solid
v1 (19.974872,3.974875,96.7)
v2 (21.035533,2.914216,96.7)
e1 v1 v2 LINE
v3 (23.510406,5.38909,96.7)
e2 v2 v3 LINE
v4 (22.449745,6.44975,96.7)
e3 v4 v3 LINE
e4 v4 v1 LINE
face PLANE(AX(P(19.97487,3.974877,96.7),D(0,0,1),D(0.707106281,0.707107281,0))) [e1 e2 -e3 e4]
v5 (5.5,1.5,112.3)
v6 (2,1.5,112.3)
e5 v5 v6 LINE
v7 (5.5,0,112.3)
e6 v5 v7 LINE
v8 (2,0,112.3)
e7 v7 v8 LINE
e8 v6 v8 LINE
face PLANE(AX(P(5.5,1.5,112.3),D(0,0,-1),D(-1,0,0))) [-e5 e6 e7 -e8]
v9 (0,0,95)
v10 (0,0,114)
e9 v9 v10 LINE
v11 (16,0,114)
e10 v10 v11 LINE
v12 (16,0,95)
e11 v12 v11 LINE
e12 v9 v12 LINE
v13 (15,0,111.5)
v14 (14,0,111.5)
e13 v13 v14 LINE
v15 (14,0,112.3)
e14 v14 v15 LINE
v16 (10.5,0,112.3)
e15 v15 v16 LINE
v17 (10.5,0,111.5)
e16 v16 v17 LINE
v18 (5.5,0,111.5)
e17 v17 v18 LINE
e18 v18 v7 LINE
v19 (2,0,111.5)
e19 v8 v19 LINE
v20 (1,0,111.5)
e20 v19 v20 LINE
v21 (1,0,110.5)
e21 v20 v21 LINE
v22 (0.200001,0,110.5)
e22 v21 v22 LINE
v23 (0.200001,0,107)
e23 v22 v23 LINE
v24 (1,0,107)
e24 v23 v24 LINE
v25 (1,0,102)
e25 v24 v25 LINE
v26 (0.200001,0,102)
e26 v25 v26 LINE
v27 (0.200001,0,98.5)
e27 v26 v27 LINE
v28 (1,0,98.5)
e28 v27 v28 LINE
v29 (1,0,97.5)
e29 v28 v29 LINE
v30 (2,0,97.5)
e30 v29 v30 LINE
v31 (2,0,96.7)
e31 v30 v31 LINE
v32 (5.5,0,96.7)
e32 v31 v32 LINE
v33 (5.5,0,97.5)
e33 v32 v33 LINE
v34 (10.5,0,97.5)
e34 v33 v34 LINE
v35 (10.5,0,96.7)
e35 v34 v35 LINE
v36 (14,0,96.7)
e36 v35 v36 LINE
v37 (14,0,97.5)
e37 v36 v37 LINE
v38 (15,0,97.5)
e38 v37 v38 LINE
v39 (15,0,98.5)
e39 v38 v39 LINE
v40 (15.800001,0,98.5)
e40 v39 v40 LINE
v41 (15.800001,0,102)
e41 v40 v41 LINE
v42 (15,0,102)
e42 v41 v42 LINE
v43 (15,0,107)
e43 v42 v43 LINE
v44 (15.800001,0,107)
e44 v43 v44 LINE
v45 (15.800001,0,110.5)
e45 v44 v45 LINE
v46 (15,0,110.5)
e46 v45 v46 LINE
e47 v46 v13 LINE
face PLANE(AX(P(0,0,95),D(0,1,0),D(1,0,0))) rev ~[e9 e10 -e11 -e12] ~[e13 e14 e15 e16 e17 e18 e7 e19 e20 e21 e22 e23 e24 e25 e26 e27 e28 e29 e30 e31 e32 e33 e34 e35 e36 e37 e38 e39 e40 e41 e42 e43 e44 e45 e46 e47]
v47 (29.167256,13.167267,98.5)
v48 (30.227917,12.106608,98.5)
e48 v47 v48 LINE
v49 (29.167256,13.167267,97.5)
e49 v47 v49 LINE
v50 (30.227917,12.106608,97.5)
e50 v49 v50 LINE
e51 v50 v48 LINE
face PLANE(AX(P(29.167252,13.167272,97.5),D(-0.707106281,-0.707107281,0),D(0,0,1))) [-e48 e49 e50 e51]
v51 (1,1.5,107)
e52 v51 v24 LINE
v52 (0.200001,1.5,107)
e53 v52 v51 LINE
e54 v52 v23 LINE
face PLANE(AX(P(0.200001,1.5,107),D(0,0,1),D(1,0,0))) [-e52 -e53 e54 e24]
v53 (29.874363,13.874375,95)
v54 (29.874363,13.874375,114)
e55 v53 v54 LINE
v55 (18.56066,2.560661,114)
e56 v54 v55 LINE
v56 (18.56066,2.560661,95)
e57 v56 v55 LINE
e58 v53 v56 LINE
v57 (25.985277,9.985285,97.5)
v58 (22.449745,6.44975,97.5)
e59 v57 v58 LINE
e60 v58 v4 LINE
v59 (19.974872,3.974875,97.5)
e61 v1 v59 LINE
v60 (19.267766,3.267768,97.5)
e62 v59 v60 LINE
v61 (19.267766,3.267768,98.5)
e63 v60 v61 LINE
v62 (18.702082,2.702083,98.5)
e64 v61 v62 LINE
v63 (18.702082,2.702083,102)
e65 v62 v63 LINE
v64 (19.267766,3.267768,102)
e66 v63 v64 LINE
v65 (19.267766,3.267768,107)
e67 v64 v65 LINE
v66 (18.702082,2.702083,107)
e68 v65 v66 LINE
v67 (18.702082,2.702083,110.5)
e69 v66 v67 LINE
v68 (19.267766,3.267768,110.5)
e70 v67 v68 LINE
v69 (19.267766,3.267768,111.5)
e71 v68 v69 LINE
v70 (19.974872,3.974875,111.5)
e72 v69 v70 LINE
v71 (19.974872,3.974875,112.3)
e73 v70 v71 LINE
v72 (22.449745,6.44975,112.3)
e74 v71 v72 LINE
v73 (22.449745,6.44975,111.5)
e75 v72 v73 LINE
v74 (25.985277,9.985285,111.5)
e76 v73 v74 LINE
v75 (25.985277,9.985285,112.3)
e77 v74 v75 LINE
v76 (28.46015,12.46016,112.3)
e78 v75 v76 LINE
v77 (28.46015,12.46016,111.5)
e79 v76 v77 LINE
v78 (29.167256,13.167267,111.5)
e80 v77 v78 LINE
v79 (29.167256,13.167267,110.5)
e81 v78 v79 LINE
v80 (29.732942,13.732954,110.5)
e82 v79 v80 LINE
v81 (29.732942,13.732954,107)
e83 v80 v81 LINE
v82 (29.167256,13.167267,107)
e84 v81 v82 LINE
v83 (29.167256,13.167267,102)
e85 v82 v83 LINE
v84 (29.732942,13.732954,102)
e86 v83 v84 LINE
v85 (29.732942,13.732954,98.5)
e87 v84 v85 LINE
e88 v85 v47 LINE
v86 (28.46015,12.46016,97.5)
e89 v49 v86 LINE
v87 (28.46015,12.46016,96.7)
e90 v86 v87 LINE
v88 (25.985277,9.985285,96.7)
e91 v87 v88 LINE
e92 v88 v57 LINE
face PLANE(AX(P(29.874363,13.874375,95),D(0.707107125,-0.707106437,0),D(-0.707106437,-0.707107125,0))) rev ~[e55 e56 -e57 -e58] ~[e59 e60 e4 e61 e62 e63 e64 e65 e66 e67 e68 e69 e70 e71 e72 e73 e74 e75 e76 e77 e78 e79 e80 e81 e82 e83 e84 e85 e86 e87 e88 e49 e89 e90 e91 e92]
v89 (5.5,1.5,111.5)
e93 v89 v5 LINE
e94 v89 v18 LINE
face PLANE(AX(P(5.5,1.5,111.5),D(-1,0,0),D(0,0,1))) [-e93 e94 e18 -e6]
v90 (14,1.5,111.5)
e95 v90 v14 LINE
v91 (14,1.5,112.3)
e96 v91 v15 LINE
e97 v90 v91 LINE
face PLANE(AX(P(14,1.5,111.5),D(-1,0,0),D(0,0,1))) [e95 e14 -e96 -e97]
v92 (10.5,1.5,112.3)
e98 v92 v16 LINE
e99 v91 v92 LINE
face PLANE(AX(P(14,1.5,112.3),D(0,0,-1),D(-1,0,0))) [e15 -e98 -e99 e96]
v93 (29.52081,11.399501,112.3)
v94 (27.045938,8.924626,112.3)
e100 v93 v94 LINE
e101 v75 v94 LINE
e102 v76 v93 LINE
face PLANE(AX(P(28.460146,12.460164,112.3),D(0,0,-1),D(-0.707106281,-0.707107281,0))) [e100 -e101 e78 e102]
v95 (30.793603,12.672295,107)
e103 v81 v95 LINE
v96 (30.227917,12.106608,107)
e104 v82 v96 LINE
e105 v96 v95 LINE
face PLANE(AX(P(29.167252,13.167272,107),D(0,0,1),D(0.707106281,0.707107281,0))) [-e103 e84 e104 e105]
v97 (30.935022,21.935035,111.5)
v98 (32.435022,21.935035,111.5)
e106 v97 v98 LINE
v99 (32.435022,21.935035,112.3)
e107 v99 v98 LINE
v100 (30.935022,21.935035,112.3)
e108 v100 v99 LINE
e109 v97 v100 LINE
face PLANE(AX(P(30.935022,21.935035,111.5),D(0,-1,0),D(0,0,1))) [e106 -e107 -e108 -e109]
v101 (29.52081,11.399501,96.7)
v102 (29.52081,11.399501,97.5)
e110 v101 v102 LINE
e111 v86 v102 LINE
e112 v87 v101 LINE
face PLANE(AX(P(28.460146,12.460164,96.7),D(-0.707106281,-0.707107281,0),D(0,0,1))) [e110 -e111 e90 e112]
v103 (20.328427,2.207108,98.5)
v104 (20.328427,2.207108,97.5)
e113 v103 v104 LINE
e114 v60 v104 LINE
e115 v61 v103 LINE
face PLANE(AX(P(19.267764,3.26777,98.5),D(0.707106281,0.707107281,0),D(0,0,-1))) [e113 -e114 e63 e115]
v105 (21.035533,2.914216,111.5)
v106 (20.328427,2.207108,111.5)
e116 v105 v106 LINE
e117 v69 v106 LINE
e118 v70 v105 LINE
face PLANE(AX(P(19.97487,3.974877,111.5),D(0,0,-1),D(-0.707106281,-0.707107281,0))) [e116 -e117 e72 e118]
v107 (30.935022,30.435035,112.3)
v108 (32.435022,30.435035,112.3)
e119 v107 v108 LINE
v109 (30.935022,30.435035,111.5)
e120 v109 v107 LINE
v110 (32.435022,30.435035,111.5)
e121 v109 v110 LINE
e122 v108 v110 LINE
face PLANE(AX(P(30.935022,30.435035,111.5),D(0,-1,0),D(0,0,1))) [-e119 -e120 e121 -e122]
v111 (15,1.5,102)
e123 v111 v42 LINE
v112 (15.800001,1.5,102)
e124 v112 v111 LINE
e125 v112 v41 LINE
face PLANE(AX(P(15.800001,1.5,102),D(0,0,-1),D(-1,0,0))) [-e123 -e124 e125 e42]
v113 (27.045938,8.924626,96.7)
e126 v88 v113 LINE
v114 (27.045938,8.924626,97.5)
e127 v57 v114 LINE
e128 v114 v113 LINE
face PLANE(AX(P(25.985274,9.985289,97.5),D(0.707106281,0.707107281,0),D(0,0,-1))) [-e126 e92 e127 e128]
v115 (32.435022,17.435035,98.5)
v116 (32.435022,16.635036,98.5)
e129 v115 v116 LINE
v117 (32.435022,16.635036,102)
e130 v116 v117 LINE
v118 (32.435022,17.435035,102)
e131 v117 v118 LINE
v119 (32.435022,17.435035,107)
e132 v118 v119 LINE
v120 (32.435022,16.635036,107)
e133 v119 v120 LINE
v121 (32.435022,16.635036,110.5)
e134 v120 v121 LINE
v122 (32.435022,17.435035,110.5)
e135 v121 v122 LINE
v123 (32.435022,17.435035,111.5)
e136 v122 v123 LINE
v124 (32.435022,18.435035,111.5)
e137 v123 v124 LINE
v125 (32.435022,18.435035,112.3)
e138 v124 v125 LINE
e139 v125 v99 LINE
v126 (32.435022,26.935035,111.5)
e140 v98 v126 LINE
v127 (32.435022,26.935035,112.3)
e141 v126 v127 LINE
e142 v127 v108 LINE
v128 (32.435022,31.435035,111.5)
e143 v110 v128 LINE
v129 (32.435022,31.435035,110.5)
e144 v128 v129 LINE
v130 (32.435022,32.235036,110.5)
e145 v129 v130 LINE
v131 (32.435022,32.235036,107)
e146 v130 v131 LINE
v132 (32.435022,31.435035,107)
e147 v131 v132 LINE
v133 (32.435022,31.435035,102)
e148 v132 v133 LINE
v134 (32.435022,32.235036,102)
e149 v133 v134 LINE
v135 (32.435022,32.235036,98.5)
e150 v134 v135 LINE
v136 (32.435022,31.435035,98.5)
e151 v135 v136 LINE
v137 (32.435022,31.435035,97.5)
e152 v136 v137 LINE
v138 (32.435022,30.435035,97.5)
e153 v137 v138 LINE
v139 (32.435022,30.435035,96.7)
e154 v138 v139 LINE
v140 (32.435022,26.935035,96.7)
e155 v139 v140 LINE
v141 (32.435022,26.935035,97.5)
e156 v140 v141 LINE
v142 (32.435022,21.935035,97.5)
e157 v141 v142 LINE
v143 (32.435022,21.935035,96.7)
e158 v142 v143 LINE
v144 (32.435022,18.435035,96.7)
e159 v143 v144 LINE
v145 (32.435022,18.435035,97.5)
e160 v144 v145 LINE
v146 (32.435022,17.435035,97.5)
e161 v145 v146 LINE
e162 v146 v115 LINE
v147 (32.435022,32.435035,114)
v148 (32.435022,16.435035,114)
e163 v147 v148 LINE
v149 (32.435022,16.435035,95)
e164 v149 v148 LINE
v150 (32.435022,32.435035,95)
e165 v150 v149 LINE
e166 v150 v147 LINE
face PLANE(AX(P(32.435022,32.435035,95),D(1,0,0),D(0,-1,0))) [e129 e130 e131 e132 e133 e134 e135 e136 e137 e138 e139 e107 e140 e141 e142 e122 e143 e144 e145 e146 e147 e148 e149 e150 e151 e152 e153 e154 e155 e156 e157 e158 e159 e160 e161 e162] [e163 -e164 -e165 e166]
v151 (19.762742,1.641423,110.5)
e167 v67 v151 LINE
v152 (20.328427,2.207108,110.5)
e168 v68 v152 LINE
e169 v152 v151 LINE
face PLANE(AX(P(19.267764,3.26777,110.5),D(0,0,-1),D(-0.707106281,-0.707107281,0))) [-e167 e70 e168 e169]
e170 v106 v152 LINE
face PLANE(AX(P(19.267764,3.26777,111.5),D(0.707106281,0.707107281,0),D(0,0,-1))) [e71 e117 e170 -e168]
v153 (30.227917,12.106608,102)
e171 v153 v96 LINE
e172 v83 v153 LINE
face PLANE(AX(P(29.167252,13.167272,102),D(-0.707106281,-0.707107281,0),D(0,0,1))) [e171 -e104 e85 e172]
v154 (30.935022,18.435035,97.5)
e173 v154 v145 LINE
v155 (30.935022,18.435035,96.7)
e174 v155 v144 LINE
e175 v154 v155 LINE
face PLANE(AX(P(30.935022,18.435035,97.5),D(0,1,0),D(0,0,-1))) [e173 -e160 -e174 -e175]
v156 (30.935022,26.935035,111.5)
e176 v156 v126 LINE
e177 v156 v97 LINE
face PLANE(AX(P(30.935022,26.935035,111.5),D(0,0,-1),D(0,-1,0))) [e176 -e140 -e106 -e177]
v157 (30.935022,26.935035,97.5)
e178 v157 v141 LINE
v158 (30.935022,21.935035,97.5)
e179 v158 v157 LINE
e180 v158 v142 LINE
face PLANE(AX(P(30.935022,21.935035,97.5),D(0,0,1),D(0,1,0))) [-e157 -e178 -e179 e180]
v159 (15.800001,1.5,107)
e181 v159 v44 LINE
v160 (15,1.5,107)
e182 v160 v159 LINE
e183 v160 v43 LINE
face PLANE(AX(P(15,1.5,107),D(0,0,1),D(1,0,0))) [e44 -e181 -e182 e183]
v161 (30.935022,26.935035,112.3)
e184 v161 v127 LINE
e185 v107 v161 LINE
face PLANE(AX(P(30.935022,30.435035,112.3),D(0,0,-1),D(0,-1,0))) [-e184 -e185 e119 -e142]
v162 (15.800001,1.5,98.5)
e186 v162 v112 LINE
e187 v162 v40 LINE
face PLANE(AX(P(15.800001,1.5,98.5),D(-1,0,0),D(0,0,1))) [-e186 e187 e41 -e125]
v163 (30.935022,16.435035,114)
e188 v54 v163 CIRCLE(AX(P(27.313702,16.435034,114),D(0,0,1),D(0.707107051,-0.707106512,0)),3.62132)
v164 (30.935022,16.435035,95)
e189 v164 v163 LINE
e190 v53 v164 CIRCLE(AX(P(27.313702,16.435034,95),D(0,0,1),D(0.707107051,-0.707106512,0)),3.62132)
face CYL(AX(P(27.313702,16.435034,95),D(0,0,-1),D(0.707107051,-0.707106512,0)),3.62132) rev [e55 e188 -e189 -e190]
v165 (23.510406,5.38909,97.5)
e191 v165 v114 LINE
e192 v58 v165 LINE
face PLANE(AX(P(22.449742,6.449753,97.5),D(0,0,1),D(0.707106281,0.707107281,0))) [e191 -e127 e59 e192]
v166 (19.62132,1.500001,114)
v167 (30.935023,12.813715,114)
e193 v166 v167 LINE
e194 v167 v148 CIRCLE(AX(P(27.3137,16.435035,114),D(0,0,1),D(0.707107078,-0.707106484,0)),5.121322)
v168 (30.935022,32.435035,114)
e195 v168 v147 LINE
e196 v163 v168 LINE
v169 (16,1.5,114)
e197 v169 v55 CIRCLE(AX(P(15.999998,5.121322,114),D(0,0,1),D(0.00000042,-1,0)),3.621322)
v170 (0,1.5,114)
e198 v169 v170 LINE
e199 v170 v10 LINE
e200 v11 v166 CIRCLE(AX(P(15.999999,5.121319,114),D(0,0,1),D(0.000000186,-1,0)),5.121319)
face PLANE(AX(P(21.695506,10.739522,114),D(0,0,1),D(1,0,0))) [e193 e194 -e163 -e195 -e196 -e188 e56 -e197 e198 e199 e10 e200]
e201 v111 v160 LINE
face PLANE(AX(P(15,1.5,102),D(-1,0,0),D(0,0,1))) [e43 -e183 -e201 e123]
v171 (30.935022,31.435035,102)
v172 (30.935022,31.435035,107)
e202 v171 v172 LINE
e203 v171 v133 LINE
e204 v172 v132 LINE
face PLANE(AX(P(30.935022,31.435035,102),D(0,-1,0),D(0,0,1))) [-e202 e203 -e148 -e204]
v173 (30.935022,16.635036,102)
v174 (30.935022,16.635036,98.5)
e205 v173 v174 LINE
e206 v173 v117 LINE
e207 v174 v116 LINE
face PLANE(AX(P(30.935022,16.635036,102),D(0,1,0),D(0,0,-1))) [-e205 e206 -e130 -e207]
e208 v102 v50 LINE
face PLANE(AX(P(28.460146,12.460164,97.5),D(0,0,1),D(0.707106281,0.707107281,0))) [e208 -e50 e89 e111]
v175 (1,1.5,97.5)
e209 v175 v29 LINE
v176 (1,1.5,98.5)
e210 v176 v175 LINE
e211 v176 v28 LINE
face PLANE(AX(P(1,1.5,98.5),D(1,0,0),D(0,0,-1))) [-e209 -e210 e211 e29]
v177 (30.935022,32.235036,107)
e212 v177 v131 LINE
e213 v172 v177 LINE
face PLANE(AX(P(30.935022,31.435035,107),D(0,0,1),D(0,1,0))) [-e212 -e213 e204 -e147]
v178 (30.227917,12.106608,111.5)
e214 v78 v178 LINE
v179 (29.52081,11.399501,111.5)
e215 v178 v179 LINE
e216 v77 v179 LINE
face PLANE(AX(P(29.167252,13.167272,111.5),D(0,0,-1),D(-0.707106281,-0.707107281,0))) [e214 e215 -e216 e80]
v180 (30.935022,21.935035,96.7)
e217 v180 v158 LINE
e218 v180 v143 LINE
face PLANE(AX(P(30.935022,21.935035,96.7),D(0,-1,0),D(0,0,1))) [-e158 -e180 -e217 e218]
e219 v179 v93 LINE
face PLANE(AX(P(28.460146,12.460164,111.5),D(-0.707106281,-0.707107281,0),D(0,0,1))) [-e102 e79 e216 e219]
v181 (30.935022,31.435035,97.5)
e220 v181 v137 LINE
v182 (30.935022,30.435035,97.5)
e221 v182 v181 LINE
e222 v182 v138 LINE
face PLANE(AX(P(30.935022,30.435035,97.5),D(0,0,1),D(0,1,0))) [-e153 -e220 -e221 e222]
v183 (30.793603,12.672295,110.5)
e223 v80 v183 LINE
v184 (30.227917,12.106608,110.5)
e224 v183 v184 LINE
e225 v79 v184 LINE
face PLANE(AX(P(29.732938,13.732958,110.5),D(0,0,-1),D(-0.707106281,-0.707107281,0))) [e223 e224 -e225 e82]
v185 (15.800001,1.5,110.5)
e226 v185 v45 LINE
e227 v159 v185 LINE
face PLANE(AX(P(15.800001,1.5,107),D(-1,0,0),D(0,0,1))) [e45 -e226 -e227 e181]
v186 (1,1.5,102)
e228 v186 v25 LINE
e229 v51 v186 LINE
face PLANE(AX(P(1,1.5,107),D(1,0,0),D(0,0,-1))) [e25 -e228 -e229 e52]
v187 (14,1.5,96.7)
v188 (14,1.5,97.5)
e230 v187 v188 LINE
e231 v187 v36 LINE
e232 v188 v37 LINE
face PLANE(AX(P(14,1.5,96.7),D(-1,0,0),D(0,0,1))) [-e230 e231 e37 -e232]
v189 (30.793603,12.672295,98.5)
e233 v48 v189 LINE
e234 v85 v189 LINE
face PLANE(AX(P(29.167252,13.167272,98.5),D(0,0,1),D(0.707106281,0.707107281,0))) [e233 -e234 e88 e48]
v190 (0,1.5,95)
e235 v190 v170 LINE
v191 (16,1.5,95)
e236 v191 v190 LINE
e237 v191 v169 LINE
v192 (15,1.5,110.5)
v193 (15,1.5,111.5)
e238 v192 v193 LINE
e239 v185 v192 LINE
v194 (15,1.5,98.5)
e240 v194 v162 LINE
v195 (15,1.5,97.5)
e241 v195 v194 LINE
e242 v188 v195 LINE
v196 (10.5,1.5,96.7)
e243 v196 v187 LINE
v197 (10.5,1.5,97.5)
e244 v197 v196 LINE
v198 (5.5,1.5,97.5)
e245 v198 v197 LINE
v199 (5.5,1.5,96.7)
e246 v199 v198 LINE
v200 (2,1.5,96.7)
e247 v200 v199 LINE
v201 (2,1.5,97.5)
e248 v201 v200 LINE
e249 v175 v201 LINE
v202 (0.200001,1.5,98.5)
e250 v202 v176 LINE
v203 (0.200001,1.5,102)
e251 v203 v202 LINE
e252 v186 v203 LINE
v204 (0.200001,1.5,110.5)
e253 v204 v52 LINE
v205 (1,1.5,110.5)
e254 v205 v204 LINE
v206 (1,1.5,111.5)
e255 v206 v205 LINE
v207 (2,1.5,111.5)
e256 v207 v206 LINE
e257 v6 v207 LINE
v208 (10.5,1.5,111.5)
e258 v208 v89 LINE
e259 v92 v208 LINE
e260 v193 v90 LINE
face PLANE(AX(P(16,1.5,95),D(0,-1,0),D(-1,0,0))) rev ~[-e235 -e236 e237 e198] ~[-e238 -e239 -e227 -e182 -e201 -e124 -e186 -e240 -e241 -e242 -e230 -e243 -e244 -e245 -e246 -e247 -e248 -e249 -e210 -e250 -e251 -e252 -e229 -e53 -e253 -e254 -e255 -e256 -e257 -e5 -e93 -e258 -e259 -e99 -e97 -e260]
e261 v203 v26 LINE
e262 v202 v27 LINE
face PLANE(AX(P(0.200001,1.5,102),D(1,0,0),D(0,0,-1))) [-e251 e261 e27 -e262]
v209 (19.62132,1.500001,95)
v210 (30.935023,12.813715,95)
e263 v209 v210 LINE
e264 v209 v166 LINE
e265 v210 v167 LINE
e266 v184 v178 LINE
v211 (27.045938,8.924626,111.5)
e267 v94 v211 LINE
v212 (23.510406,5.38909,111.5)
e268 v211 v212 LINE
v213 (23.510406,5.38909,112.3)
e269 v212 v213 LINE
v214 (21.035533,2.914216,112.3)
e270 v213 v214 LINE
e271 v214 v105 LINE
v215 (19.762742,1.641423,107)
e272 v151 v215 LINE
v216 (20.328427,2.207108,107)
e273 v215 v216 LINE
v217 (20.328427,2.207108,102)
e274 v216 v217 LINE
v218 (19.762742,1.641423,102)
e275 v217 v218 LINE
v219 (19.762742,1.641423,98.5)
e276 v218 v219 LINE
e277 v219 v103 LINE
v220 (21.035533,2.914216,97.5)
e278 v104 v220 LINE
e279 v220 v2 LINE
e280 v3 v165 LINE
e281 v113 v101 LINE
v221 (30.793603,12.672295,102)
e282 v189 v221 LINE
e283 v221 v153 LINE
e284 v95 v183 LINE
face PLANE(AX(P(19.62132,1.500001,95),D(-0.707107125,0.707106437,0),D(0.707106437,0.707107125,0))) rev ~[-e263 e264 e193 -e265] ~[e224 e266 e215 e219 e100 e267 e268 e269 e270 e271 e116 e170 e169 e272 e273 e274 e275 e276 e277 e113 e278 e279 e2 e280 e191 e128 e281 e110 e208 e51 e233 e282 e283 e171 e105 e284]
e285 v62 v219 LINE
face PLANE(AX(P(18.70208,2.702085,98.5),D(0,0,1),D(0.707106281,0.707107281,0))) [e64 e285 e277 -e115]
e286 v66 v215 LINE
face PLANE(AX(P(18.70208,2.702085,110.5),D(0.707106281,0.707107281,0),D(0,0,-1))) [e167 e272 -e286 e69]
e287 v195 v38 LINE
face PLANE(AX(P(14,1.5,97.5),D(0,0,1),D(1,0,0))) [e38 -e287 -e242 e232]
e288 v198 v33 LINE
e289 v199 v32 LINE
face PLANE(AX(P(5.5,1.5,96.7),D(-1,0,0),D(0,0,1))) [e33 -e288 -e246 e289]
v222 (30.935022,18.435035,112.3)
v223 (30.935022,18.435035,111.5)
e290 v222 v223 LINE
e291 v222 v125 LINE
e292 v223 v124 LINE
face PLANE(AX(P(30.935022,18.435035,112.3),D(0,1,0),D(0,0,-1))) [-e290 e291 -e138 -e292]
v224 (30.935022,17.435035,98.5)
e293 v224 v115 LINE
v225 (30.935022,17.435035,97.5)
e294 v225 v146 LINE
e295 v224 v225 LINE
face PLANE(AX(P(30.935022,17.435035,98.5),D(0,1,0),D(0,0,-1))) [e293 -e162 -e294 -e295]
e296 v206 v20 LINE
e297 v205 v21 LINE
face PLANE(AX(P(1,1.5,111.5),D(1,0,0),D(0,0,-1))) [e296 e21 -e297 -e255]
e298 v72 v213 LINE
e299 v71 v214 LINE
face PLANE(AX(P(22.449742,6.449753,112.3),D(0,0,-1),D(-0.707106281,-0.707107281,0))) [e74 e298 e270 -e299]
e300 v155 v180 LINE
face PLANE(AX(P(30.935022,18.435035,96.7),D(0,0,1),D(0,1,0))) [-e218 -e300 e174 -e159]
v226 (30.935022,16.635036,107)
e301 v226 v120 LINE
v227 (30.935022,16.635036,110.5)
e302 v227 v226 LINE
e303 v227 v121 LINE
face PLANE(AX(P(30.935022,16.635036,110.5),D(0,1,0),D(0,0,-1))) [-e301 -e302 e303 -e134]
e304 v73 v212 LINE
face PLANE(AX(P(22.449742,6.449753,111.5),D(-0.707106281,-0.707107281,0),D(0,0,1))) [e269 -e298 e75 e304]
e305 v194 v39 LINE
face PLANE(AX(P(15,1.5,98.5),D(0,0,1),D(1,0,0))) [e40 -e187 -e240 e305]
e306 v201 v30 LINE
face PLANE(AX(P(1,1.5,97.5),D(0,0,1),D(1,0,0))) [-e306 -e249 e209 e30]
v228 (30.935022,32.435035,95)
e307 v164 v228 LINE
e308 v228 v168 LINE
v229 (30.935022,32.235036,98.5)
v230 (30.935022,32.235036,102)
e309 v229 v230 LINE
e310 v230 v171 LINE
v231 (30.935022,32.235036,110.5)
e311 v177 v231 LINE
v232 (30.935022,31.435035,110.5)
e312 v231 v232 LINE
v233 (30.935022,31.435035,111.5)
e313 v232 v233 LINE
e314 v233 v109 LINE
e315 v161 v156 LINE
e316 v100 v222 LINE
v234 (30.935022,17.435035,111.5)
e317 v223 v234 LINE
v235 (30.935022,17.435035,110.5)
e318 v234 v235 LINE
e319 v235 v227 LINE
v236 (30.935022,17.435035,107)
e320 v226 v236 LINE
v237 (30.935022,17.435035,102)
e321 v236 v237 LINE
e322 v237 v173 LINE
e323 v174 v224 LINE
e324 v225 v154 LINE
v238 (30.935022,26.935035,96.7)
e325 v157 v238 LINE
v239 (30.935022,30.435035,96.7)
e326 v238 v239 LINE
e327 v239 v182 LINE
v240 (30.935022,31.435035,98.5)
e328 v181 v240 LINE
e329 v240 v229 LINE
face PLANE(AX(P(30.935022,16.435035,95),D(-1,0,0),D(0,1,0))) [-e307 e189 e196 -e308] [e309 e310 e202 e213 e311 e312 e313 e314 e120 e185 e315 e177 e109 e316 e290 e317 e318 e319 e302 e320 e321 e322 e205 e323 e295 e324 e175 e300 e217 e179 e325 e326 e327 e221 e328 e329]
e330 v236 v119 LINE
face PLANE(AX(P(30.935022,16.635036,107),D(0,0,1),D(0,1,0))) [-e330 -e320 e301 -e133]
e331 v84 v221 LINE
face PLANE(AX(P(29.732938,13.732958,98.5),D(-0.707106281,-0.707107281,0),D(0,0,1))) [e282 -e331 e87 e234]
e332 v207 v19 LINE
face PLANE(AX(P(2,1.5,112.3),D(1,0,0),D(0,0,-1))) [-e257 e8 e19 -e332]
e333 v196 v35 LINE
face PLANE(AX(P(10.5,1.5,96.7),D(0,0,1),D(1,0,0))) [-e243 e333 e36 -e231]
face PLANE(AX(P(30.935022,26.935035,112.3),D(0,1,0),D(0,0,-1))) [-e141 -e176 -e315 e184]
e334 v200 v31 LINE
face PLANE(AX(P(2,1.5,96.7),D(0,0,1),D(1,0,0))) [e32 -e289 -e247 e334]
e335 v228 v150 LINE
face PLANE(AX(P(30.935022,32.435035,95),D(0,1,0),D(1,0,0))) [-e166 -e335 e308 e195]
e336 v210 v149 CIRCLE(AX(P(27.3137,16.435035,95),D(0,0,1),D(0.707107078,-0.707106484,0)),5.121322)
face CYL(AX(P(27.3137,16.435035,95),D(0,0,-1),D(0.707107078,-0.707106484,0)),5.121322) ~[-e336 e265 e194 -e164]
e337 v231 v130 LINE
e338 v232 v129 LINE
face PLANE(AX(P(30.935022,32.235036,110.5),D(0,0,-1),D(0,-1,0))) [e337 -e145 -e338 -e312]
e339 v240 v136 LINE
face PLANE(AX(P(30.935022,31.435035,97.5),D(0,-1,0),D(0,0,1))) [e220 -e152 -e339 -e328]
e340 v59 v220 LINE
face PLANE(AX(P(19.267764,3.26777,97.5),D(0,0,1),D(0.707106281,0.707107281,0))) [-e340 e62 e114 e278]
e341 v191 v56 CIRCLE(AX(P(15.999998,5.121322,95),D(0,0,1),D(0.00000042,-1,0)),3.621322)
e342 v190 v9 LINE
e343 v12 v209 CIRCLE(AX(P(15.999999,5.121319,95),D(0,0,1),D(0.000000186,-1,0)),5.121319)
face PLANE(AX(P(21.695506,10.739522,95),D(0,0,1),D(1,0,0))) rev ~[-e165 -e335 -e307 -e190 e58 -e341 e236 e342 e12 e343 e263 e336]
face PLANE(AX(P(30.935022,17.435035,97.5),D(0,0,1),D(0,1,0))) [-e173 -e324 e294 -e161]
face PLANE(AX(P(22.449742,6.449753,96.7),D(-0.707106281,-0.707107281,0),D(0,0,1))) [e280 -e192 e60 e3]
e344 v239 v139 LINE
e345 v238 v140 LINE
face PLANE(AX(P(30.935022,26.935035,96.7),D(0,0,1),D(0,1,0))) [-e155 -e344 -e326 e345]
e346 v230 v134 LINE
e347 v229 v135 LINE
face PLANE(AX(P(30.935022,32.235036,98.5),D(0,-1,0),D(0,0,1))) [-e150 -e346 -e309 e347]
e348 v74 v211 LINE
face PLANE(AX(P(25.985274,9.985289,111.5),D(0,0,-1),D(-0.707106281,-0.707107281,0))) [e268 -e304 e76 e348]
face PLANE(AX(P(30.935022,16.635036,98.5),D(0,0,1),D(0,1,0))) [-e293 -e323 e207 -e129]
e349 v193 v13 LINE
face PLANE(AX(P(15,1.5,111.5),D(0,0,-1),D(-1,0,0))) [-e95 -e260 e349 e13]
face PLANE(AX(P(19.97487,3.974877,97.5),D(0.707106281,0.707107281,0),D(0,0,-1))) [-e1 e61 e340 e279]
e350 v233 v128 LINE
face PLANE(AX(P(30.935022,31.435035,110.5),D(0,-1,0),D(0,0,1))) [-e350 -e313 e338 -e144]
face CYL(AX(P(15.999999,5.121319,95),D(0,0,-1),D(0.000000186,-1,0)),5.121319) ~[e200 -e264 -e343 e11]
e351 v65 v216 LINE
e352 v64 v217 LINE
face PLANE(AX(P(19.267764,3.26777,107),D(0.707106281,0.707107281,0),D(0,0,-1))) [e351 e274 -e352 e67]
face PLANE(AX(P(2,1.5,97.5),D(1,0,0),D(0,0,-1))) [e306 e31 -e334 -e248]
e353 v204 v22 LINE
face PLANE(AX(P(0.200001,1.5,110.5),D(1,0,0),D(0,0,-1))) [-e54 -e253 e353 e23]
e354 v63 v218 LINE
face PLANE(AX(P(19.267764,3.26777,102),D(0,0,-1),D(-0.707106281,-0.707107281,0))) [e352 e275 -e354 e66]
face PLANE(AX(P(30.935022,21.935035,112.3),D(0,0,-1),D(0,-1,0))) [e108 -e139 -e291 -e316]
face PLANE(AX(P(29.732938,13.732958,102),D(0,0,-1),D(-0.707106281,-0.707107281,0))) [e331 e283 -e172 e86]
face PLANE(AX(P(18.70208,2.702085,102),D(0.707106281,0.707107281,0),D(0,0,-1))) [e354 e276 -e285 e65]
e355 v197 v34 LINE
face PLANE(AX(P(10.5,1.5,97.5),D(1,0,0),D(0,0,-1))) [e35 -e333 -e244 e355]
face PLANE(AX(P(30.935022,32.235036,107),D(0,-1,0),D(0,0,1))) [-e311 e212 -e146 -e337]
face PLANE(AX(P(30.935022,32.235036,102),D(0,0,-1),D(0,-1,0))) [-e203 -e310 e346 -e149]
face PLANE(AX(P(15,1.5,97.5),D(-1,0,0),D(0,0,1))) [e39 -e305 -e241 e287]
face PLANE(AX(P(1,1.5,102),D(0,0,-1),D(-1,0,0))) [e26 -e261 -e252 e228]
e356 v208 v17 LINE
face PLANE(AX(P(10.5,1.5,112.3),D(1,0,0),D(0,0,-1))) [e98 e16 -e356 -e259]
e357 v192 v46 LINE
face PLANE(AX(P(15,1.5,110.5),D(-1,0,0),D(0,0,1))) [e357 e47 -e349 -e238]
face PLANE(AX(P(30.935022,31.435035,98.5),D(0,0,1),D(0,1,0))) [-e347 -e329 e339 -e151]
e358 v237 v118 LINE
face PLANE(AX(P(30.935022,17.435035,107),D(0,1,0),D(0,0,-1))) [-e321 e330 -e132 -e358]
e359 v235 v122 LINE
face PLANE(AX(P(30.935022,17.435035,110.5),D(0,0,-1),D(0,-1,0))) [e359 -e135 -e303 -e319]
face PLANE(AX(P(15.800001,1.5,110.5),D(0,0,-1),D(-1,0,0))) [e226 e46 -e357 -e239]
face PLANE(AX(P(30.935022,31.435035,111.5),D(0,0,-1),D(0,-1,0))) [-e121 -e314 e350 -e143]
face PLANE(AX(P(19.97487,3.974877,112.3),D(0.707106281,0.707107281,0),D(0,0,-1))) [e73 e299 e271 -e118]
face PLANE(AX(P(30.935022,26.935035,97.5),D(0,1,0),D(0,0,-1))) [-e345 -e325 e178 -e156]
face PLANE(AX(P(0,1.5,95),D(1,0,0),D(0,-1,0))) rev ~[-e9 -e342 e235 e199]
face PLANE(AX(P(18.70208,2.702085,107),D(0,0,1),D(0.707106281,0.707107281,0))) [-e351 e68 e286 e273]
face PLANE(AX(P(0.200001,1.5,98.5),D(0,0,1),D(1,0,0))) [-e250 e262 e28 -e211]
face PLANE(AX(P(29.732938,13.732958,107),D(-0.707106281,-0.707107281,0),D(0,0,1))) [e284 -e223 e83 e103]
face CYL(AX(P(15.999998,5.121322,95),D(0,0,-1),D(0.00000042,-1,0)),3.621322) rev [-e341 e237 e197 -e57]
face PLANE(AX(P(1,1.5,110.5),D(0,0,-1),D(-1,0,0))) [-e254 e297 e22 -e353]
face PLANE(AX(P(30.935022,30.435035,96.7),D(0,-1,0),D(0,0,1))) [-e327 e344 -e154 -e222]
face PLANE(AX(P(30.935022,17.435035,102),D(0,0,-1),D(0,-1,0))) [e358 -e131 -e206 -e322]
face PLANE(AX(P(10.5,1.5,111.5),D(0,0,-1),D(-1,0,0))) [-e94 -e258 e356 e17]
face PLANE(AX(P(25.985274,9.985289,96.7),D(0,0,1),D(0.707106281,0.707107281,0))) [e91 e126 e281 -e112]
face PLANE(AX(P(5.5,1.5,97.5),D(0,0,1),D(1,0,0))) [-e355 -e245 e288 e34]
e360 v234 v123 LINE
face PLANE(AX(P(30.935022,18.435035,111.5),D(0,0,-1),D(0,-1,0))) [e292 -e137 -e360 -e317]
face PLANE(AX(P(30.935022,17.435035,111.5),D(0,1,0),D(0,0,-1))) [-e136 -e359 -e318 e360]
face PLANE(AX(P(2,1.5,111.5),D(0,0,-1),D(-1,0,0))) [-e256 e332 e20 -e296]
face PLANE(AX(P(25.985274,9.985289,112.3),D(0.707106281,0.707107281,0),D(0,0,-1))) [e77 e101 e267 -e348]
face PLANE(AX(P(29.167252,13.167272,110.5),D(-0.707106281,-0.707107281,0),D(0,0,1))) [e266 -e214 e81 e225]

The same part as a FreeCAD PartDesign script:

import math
import FreeCAD as App
import Part
import Sketcher

V = App.Vector
Q = App.Units.Quantity


def add_polygon(sketch, points):
    """Adds a closed chain of lines whose ends are joined by coincident constraints."""
    first, n = sketch.GeometryCount, len(points)
    for a, b in zip(points, points[1:] + points[:1]):
        sketch.addGeometry(Part.LineSegment(App.Vector(*a, 0), App.Vector(*b, 0)), False)
    for i in range(n):
        sketch.addConstraint(Sketcher.Constraint("Coincident", first + i, 2, first + (i + 1) % n, 1))

doc = App.newDocument("Part")
params = doc.addObject("Spreadsheet::Sheet", "Params")
for row, (alias, value) in enumerate([
    ("sketch1_width", "16 mm"),
    ("sketch1_length", "16 mm"),
    ("sketch1_width2", "1.5 mm"),
    ("pad1_length", "19 mm"),
    ("sketch2_width", "1 mm"),
    ("sketch2_width2", "5 mm"),
    ("sketch2_width3", "3.5 mm"),
    ("sketch2_width4", "0.800001 mm"),
    ("sketch3_width", "1 mm"),
    ("sketch3_width2", "5 mm"),
    ("sketch3_width3", "3.5 mm"),
    ("sketch3_width4", "0.800001 mm"),
    ("sketch4_width", "1 mm"),
    ("sketch4_width2", "5 mm"),
    ("sketch4_width3", "3.5 mm"),
    ("sketch4_width4", "0.800001 mm"),
], start=1):
    params.set(f"A{row}", alias)
    params.set(f"B{row}", "=" + value)
    params.setAlias(f"B{row}", alias)

body = doc.addObject("PartDesign::Body", "Body")

sketch1 = body.newObject("Sketcher::SketchObject", "Sketch")
sketch1.AttachmentSupport = (doc.getObject("XY_Plane"), [""])
sketch1.MapMode = "FlatFace"
sketch1.addGeometry(Part.LineSegment(V(0, 0, 0), V(16, 0, 0)), False)
sketch1.addGeometry(Part.ArcOfCircle(Part.Circle(V(16, 5.1, 0), V(0, 0, 1), 5.1), math.radians(-90), math.radians(-45)), False)
sketch1.addGeometry(Part.LineSegment(V(19.6, 1.5, 0), V(30.9, 12.8, 0)), False)
sketch1.addGeometry(Part.ArcOfCircle(Part.Circle(V(27.3, 16.4, 0), V(0, 0, 1), 5.1), math.radians(-45), math.radians(0)), False)
sketch1.addGeometry(Part.LineSegment(V(32.4, 16.4, 0), V(32.4, 32.4, 0)), False)
sketch1.addGeometry(Part.LineSegment(V(32.4, 32.4, 0), V(30.9, 32.4, 0)), False)
sketch1.addGeometry(Part.LineSegment(V(30.9, 32.4, 0), V(30.9, 16.4, 0)), False)
sketch1.addGeometry(Part.ArcOfCircle(Part.Circle(V(27.3, 16.4, 0), V(0, 0, 1), 3.6), math.radians(-45), math.radians(0)), False)
sketch1.addGeometry(Part.LineSegment(V(29.9, 13.9, 0), V(18.6, 2.6, 0)), False)
sketch1.addGeometry(Part.ArcOfCircle(Part.Circle(V(16, 5.1, 0), V(0, 0, 1), 3.6), math.radians(-90), math.radians(-45)), False)
sketch1.addGeometry(Part.LineSegment(V(16, 1.5, 0), V(0, 1.5, 0)), False)
sketch1.addGeometry(Part.LineSegment(V(0, 1.5, 0), V(0, 0, 0)), False)
sketch1.addConstraint(Sketcher.Constraint("Tangent", 0, 2, 1, 1))
sketch1.addConstraint(Sketcher.Constraint("Tangent", 1, 2, 2, 1))
sketch1.addConstraint(Sketcher.Constraint("Tangent", 2, 2, 3, 1))
sketch1.addConstraint(Sketcher.Constraint("Tangent", 3, 2, 4, 1))
sketch1.addConstraint(Sketcher.Constraint("Coincident", 4, 2, 5, 1))
sketch1.addConstraint(Sketcher.Constraint("Coincident", 5, 2, 6, 1))
sketch1.addConstraint(Sketcher.Constraint("Tangent", 6, 2, 7, 2))
sketch1.addConstraint(Sketcher.Constraint("Tangent", 7, 1, 8, 1))
sketch1.addConstraint(Sketcher.Constraint("Tangent", 8, 2, 9, 2))
sketch1.addConstraint(Sketcher.Constraint("Tangent", 9, 1, 10, 1))
sketch1.addConstraint(Sketcher.Constraint("Coincident", 10, 2, 11, 1))
sketch1.addConstraint(Sketcher.Constraint("Coincident", 11, 2, 0, 1))
sketch1.addConstraint(Sketcher.Constraint("Horizontal", 0))
sketch1.addConstraint(Sketcher.Constraint("Vertical", 4))
sketch1.addConstraint(Sketcher.Constraint("Horizontal", 5))
sketch1.addConstraint(Sketcher.Constraint("Vertical", 6))
sketch1.addConstraint(Sketcher.Constraint("Horizontal", 10))
sketch1.addConstraint(Sketcher.Constraint("Vertical", 11))
sketch1.addConstraint(Sketcher.Constraint("Coincident", 11, 2, -1, 1))
sketch1.addConstraint(Sketcher.Constraint("Coincident", 7, 3, 3, 3))
sketch1.addConstraint(Sketcher.Constraint("Coincident", 9, 3, 1, 3))
sketch1.addConstraint(Sketcher.Constraint("Equal", 7, 9))
sketch1.addConstraint(Sketcher.Constraint("Parallel", 2, 8))
sketch1.addConstraint(Sketcher.Constraint("Horizontal", 1, 2, 9, 1))
sketch1.addConstraint(Sketcher.Constraint("Vertical", 2, 2, 5, 2))
sketch1.addConstraint(Sketcher.Constraint("Equal", 10, 4))
sketch1.addConstraint(Sketcher.Constraint("DistanceX", 0, 1, 0, 2, Q("16 mm")))
sketch1.addConstraint(Sketcher.Constraint("Distance", 2, Q("16 mm")))
sketch1.addConstraint(Sketcher.Constraint("DistanceX", 5, 2, 5, 1, Q("1.5 mm")))
sketch1.setExpression("Constraints[26]", "Params.sketch1_width")
sketch1.setExpression("Constraints[27]", "Params.sketch1_length")
sketch1.setExpression("Constraints[28]", "Params.sketch1_width2")
pad1 = body.newObject("PartDesign::Pad", "Pad")
pad1.Profile = sketch1
pad1.setExpression("Length", "Params.pad1_length")

sketch2 = body.newObject("Sketcher::SketchObject", "Sketch001")
sketch2.Placement = App.Placement(V(8.000009, -8.000001, 0), App.Rotation(V(-0.707106281, -0.707107281, 0), V(0, 0, 0.999999999), V(-0.707107281, 0.707106281, 0), "ZXY"))
add_polygon(sketch2, [(-25.4, 17.3), (-28.9, 17.3), (-28.9, 16.5), (-29.9, 16.5), (-29.9, 15.5), (-30.7, 15.5), (-30.7, 12), (-29.9, 12), (-29.9, 7), (-30.7, 7), (-30.7, 3.5), (-29.9, 3.5), (-29.9, 2.5), (-28.9, 2.5), (-28.9, 1.7), (-25.4, 1.7), (-25.4, 2.5), (-20.4, 2.5), (-20.4, 1.7), (-16.9, 1.7), (-16.9, 2.5), (-15.9, 2.5), (-15.9, 3.5), (-15.1, 3.5), (-15.1, 7), (-15.9, 7), (-15.9, 12), (-15.1, 12), (-15.1, 15.5), (-15.9, 15.5), (-15.9, 16.5), (-16.9, 16.5), (-16.9, 17.3), (-20.4, 17.3), (-20.4, 16.5), (-25.4, 16.5)])
sketch2.addConstraint(Sketcher.Constraint("Horizontal", 0))
sketch2.addConstraint(Sketcher.Constraint("Vertical", 1))
sketch2.addConstraint(Sketcher.Constraint("Horizontal", 2))
sketch2.addConstraint(Sketcher.Constraint("Vertical", 3))
sketch2.addConstraint(Sketcher.Constraint("Horizontal", 4))
sketch2.addConstraint(Sketcher.Constraint("Vertical", 5))
sketch2.addConstraint(Sketcher.Constraint("Horizontal", 6))
sketch2.addConstraint(Sketcher.Constraint("Vertical", 7))
sketch2.addConstraint(Sketcher.Constraint("Horizontal", 8))
sketch2.addConstraint(Sketcher.Constraint("Vertical", 9))
sketch2.addConstraint(Sketcher.Constraint("Horizontal", 10))
sketch2.addConstraint(Sketcher.Constraint("Vertical", 11))
sketch2.addConstraint(Sketcher.Constraint("Horizontal", 12))
sketch2.addConstraint(Sketcher.Constraint("Vertical", 13))
sketch2.addConstraint(Sketcher.Constraint("Horizontal", 14))
sketch2.addConstraint(Sketcher.Constraint("Vertical", 15))
sketch2.addConstraint(Sketcher.Constraint("Horizontal", 16))
sketch2.addConstraint(Sketcher.Constraint("Vertical", 17))
sketch2.addConstraint(Sketcher.Constraint("Horizontal", 18))
sketch2.addConstraint(Sketcher.Constraint("Vertical", 19))
sketch2.addConstraint(Sketcher.Constraint("Horizontal", 20))
sketch2.addConstraint(Sketcher.Constraint("Vertical", 21))
sketch2.addConstraint(Sketcher.Constraint("Horizontal", 22))
sketch2.addConstraint(Sketcher.Constraint("Vertical", 23))
sketch2.addConstraint(Sketcher.Constraint("Horizontal", 24))
sketch2.addConstraint(Sketcher.Constraint("Vertical", 25))
sketch2.addConstraint(Sketcher.Constraint("Horizontal", 26))
sketch2.addConstraint(Sketcher.Constraint("Vertical", 27))
sketch2.addConstraint(Sketcher.Constraint("Horizontal", 28))
sketch2.addConstraint(Sketcher.Constraint("Vertical", 29))
sketch2.addConstraint(Sketcher.Constraint("Horizontal", 30))
sketch2.addConstraint(Sketcher.Constraint("Vertical", 31))
sketch2.addConstraint(Sketcher.Constraint("Horizontal", 32))
sketch2.addConstraint(Sketcher.Constraint("Vertical", 33))
sketch2.addConstraint(Sketcher.Constraint("Horizontal", 34))
sketch2.addConstraint(Sketcher.Constraint("Vertical", 35))
sketch2.addConstraint(Sketcher.Constraint("Horizontal", 12, 2, 15, 2))
sketch2.addConstraint(Sketcher.Constraint("Horizontal", 14, 2, 17, 2))
sketch2.addConstraint(Sketcher.Constraint("Horizontal", 16, 2, 19, 2))
sketch2.addConstraint(Sketcher.Constraint("Horizontal", 10, 2, 21, 2))
sketch2.addConstraint(Sketcher.Constraint("Horizontal", 8, 2, 23, 2))
sketch2.addConstraint(Sketcher.Constraint("Horizontal", 6, 2, 25, 2))
sketch2.addConstraint(Sketcher.Constraint("Horizontal", 4, 2, 27, 2))
sketch2.addConstraint(Sketcher.Constraint("Horizontal", 2, 2, 29, 2))
sketch2.addConstraint(Sketcher.Constraint("Horizontal", 0, 2, 31, 2))
sketch2.addConstraint(Sketcher.Constraint("Horizontal", 30, 2, 33, 2))
sketch2.addConstraint(Sketcher.Constraint("Vertical", 3, 2, 6, 2))
sketch2.addConstraint(Sketcher.Constraint("Vertical", 5, 2, 8, 2))
sketch2.addConstraint(Sketcher.Constraint("Vertical", 7, 2, 10, 2))
sketch2.addConstraint(Sketcher.Constraint("Vertical", 1, 2, 12, 2))
sketch2.addConstraint(Sketcher.Constraint("Vertical", 21, 2, 24, 2))
sketch2.addConstraint(Sketcher.Constraint("Vertical", 23, 2, 26, 2))
sketch2.addConstraint(Sketcher.Constraint("Vertical", 25, 2, 28, 2))
sketch2.addConstraint(Sketcher.Constraint("Vertical", 19, 2, 30, 2))
sketch2.addConstraint(Sketcher.Constraint("Vertical", 17, 2, 32, 2))
sketch2.addConstraint(Sketcher.Constraint("Vertical", 15, 2, 34, 2))
sketch2.addConstraint(Sketcher.Constraint("Equal", 14, 18))
sketch2.addConstraint(Sketcher.Constraint("Equal", 12, 20))
sketch2.addConstraint(Sketcher.Constraint("Equal", 28, 1))
sketch2.addConstraint(Sketcher.Constraint("Equal", 30, 3))
sketch2.addConstraint(Sketcher.Constraint("Equal", 32, 5))
sketch2.addConstraint(Sketcher.Constraint("Equal", 34, 7))
sketch2.addConstraint(Sketcher.Constraint("Equal", 5, 9))
sketch2.addConstraint(Sketcher.Constraint("Equal", 3, 11))
sketch2.addConstraint(Sketcher.Constraint("Equal", 1, 13))
sketch2.addConstraint(Sketcher.Constraint("Equal", 10, 15))
sketch2.addConstraint(Sketcher.Constraint("DistanceX", 2, 2, 2, 1, Q("1 mm")))
sketch2.addConstraint(Sketcher.Constraint("DistanceX", 16, 1, 16, 2, Q("5 mm")))
sketch2.addConstraint(Sketcher.Constraint("DistanceX", 0, 2, 0, 1, Q("3.5 mm")))
sketch2.addConstraint(Sketcher.Constraint("DistanceX", 4, 2, 4, 1, Q("0.800001 mm")))
sketch2.addConstraint(Sketcher.Constraint("DistanceY", -1, 1, 5, 2, Q("12 mm")))
sketch2.addConstraint(Sketcher.Constraint("DistanceX", 0, 2, -1, 1, Q("28.935023 mm")))
sketch2.setExpression("Constraints[102]", "Params.sketch2_width")
sketch2.setExpression("Constraints[103]", "Params.sketch2_width2")
sketch2.setExpression("Constraints[104]", "Params.sketch2_width3")
sketch2.setExpression("Constraints[105]", "Params.sketch2_width4")
pocket1 = body.newObject("PartDesign::Pocket", "Pocket")
pocket1.Profile = sketch2
pocket1.Type = "ThroughAll"

sketch3 = body.newObject("Sketcher::SketchObject", "Sketch002")
sketch3.AttachmentSupport = (doc.getObject("YZ_Plane"), [""])
sketch3.MapMode = "FlatFace"
sketch3.AttachmentOffset = App.Placement(V(0, 0, 30.935022), App.Rotation())
add_polygon(sketch3, [(26.9, 17.3), (30.4, 17.3), (30.4, 16.5), (31.4, 16.5), (31.4, 15.5), (32.2, 15.5), (32.2, 12), (31.4, 12), (31.4, 7), (32.2, 7), (32.2, 3.5), (31.4, 3.5), (31.4, 2.5), (30.4, 2.5), (30.4, 1.7), (26.9, 1.7), (26.9, 2.5), (21.9, 2.5), (21.9, 1.7), (18.4, 1.7), (18.4, 2.5), (17.4, 2.5), (17.4, 3.5), (16.6, 3.5), (16.6, 7), (17.4, 7), (17.4, 12), (16.6, 12), (16.6, 15.5), (17.4, 15.5), (17.4, 16.5), (18.4, 16.5), (18.4, 17.3), (21.9, 17.3), (21.9, 16.5), (26.9, 16.5)])
sketch3.addConstraint(Sketcher.Constraint("Horizontal", 0))
sketch3.addConstraint(Sketcher.Constraint("Vertical", 1))
sketch3.addConstraint(Sketcher.Constraint("Horizontal", 2))
sketch3.addConstraint(Sketcher.Constraint("Vertical", 3))
sketch3.addConstraint(Sketcher.Constraint("Horizontal", 4))
sketch3.addConstraint(Sketcher.Constraint("Vertical", 5))
sketch3.addConstraint(Sketcher.Constraint("Horizontal", 6))
sketch3.addConstraint(Sketcher.Constraint("Vertical", 7))
sketch3.addConstraint(Sketcher.Constraint("Horizontal", 8))
sketch3.addConstraint(Sketcher.Constraint("Vertical", 9))
sketch3.addConstraint(Sketcher.Constraint("Horizontal", 10))
sketch3.addConstraint(Sketcher.Constraint("Vertical", 11))
sketch3.addConstraint(Sketcher.Constraint("Horizontal", 12))
sketch3.addConstraint(Sketcher.Constraint("Vertical", 13))
sketch3.addConstraint(Sketcher.Constraint("Horizontal", 14))
sketch3.addConstraint(Sketcher.Constraint("Vertical", 15))
sketch3.addConstraint(Sketcher.Constraint("Horizontal", 16))
sketch3.addConstraint(Sketcher.Constraint("Vertical", 17))
sketch3.addConstraint(Sketcher.Constraint("Horizontal", 18))
sketch3.addConstraint(Sketcher.Constraint("Vertical", 19))
sketch3.addConstraint(Sketcher.Constraint("Horizontal", 20))
sketch3.addConstraint(Sketcher.Constraint("Vertical", 21))
sketch3.addConstraint(Sketcher.Constraint("Horizontal", 22))
sketch3.addConstraint(Sketcher.Constraint("Vertical", 23))
sketch3.addConstraint(Sketcher.Constraint("Horizontal", 24))
sketch3.addConstraint(Sketcher.Constraint("Vertical", 25))
sketch3.addConstraint(Sketcher.Constraint("Horizontal", 26))
sketch3.addConstraint(Sketcher.Constraint("Vertical", 27))
sketch3.addConstraint(Sketcher.Constraint("Horizontal", 28))
sketch3.addConstraint(Sketcher.Constraint("Vertical", 29))
sketch3.addConstraint(Sketcher.Constraint("Horizontal", 30))
sketch3.addConstraint(Sketcher.Constraint("Vertical", 31))
sketch3.addConstraint(Sketcher.Constraint("Horizontal", 32))
sketch3.addConstraint(Sketcher.Constraint("Vertical", 33))
sketch3.addConstraint(Sketcher.Constraint("Horizontal", 34))
sketch3.addConstraint(Sketcher.Constraint("Vertical", 35))
sketch3.addConstraint(Sketcher.Constraint("Horizontal", 12, 2, 15, 2))
sketch3.addConstraint(Sketcher.Constraint("Horizontal", 14, 2, 17, 2))
sketch3.addConstraint(Sketcher.Constraint("Horizontal", 16, 2, 19, 2))
sketch3.addConstraint(Sketcher.Constraint("Horizontal", 10, 2, 21, 2))
sketch3.addConstraint(Sketcher.Constraint("Horizontal", 8, 2, 23, 2))
sketch3.addConstraint(Sketcher.Constraint("Horizontal", 6, 2, 25, 2))
sketch3.addConstraint(Sketcher.Constraint("Horizontal", 4, 2, 27, 2))
sketch3.addConstraint(Sketcher.Constraint("Horizontal", 2, 2, 29, 2))
sketch3.addConstraint(Sketcher.Constraint("Horizontal", 0, 2, 31, 2))
sketch3.addConstraint(Sketcher.Constraint("Horizontal", 30, 2, 33, 2))
sketch3.addConstraint(Sketcher.Constraint("Vertical", 3, 2, 6, 2))
sketch3.addConstraint(Sketcher.Constraint("Vertical", 5, 2, 8, 2))
sketch3.addConstraint(Sketcher.Constraint("Vertical", 7, 2, 10, 2))
sketch3.addConstraint(Sketcher.Constraint("Vertical", 1, 2, 12, 2))
sketch3.addConstraint(Sketcher.Constraint("Vertical", 21, 2, 24, 2))
sketch3.addConstraint(Sketcher.Constraint("Vertical", 23, 2, 26, 2))
sketch3.addConstraint(Sketcher.Constraint("Vertical", 25, 2, 28, 2))
sketch3.addConstraint(Sketcher.Constraint("Vertical", 19, 2, 30, 2))
sketch3.addConstraint(Sketcher.Constraint("Vertical", 17, 2, 32, 2))
sketch3.addConstraint(Sketcher.Constraint("Vertical", 15, 2, 34, 2))
sketch3.addConstraint(Sketcher.Constraint("Equal", 14, 18))
sketch3.addConstraint(Sketcher.Constraint("Equal", 12, 20))
sketch3.addConstraint(Sketcher.Constraint("Equal", 28, 1))
sketch3.addConstraint(Sketcher.Constraint("Equal", 30, 3))
sketch3.addConstraint(Sketcher.Constraint("Equal", 32, 5))
sketch3.addConstraint(Sketcher.Constraint("Equal", 34, 7))
sketch3.addConstraint(Sketcher.Constraint("Equal", 5, 9))
sketch3.addConstraint(Sketcher.Constraint("Equal", 3, 11))
sketch3.addConstraint(Sketcher.Constraint("Equal", 1, 13))
sketch3.addConstraint(Sketcher.Constraint("Equal", 10, 15))
sketch3.addConstraint(Sketcher.Constraint("DistanceX", 2, 1, 2, 2, Q("1 mm")))
sketch3.addConstraint(Sketcher.Constraint("DistanceX", 16, 2, 16, 1, Q("5 mm")))
sketch3.addConstraint(Sketcher.Constraint("DistanceX", 0, 1, 0, 2, Q("3.5 mm")))
sketch3.addConstraint(Sketcher.Constraint("DistanceX", 4, 1, 4, 2, Q("0.800001 mm")))
sketch3.addConstraint(Sketcher.Constraint("DistanceY", -1, 1, 5, 2, Q("12 mm")))
sketch3.addConstraint(Sketcher.Constraint("DistanceX", -1, 1, 0, 2, Q("30.435035 mm")))
sketch3.setExpression("Constraints[102]", "Params.sketch3_width")
sketch3.setExpression("Constraints[103]", "Params.sketch3_width2")
sketch3.setExpression("Constraints[104]", "Params.sketch3_width3")
sketch3.setExpression("Constraints[105]", "Params.sketch3_width4")
pocket2 = body.newObject("PartDesign::Pocket", "Pocket001")
pocket2.Profile = sketch3
pocket2.Type = "ThroughAll"
pocket2.Reversed = True

sketch4 = body.newObject("Sketcher::SketchObject", "Sketch003")
sketch4.AttachmentSupport = (doc.getObject("XZ_Plane"), [""])
sketch4.MapMode = "FlatFace"
sketch4.AttachmentOffset = App.Placement(V(0, 0, -1.5), App.Rotation())
add_polygon(sketch4, [(10.5, 17.3), (14, 17.3), (14, 16.5), (15, 16.5), (15, 15.5), (15.8, 15.5), (15.8, 12), (15, 12), (15, 7), (15.8, 7), (15.8, 3.5), (15, 3.5), (15, 2.5), (14, 2.5), (14, 1.7), (10.5, 1.7), (10.5, 2.5), (5.5, 2.5), (5.5, 1.7), (2, 1.7), (2, 2.5), (1, 2.5), (1, 3.5), (0.2, 3.5), (0.2, 7), (1, 7), (1, 12), (0.2, 12), (0.2, 15.5), (1, 15.5), (1, 16.5), (2, 16.5), (2, 17.3), (5.5, 17.3), (5.5, 16.5), (10.5, 16.5)])
sketch4.addConstraint(Sketcher.Constraint("Horizontal", 0))
sketch4.addConstraint(Sketcher.Constraint("Vertical", 1))
sketch4.addConstraint(Sketcher.Constraint("Horizontal", 2))
sketch4.addConstraint(Sketcher.Constraint("Vertical", 3))
sketch4.addConstraint(Sketcher.Constraint("Horizontal", 4))
sketch4.addConstraint(Sketcher.Constraint("Vertical", 5))
sketch4.addConstraint(Sketcher.Constraint("Horizontal", 6))
sketch4.addConstraint(Sketcher.Constraint("Vertical", 7))
sketch4.addConstraint(Sketcher.Constraint("Horizontal", 8))
sketch4.addConstraint(Sketcher.Constraint("Vertical", 9))
sketch4.addConstraint(Sketcher.Constraint("Horizontal", 10))
sketch4.addConstraint(Sketcher.Constraint("Vertical", 11))
sketch4.addConstraint(Sketcher.Constraint("Horizontal", 12))
sketch4.addConstraint(Sketcher.Constraint("Vertical", 13))
sketch4.addConstraint(Sketcher.Constraint("Horizontal", 14))
sketch4.addConstraint(Sketcher.Constraint("Vertical", 15))
sketch4.addConstraint(Sketcher.Constraint("Horizontal", 16))
sketch4.addConstraint(Sketcher.Constraint("Vertical", 17))
sketch4.addConstraint(Sketcher.Constraint("Horizontal", 18))
sketch4.addConstraint(Sketcher.Constraint("Vertical", 19))
sketch4.addConstraint(Sketcher.Constraint("Horizontal", 20))
sketch4.addConstraint(Sketcher.Constraint("Vertical", 21))
sketch4.addConstraint(Sketcher.Constraint("Horizontal", 22))
sketch4.addConstraint(Sketcher.Constraint("Vertical", 23))
sketch4.addConstraint(Sketcher.Constraint("Horizontal", 24))
sketch4.addConstraint(Sketcher.Constraint("Vertical", 25))
sketch4.addConstraint(Sketcher.Constraint("Horizontal", 26))
sketch4.addConstraint(Sketcher.Constraint("Vertical", 27))
sketch4.addConstraint(Sketcher.Constraint("Horizontal", 28))
sketch4.addConstraint(Sketcher.Constraint("Vertical", 29))
sketch4.addConstraint(Sketcher.Constraint("Horizontal", 30))
sketch4.addConstraint(Sketcher.Constraint("Vertical", 31))
sketch4.addConstraint(Sketcher.Constraint("Horizontal", 32))
sketch4.addConstraint(Sketcher.Constraint("Vertical", 33))
sketch4.addConstraint(Sketcher.Constraint("Horizontal", 34))
sketch4.addConstraint(Sketcher.Constraint("Vertical", 35))
sketch4.addConstraint(Sketcher.Constraint("Horizontal", 12, 2, 15, 2))
sketch4.addConstraint(Sketcher.Constraint("Horizontal", 14, 2, 17, 2))
sketch4.addConstraint(Sketcher.Constraint("Horizontal", 16, 2, 19, 2))
sketch4.addConstraint(Sketcher.Constraint("Horizontal", 10, 2, 21, 2))
sketch4.addConstraint(Sketcher.Constraint("Horizontal", 8, 2, 23, 2))
sketch4.addConstraint(Sketcher.Constraint("Horizontal", 6, 2, 25, 2))
sketch4.addConstraint(Sketcher.Constraint("Horizontal", 4, 2, 27, 2))
sketch4.addConstraint(Sketcher.Constraint("Horizontal", 2, 2, 29, 2))
sketch4.addConstraint(Sketcher.Constraint("Horizontal", 0, 2, 31, 2))
sketch4.addConstraint(Sketcher.Constraint("Horizontal", 30, 2, 33, 2))
sketch4.addConstraint(Sketcher.Constraint("Vertical", 3, 2, 6, 2))
sketch4.addConstraint(Sketcher.Constraint("Vertical", 5, 2, 8, 2))
sketch4.addConstraint(Sketcher.Constraint("Vertical", 7, 2, 10, 2))
sketch4.addConstraint(Sketcher.Constraint("Vertical", 1, 2, 12, 2))
sketch4.addConstraint(Sketcher.Constraint("Vertical", 21, 2, 24, 2))
sketch4.addConstraint(Sketcher.Constraint("Vertical", 23, 2, 26, 2))
sketch4.addConstraint(Sketcher.Constraint("Vertical", 25, 2, 28, 2))
sketch4.addConstraint(Sketcher.Constraint("Vertical", 19, 2, 30, 2))
sketch4.addConstraint(Sketcher.Constraint("Vertical", 17, 2, 32, 2))
sketch4.addConstraint(Sketcher.Constraint("Vertical", 15, 2, 34, 2))
sketch4.addConstraint(Sketcher.Constraint("Equal", 14, 18))
sketch4.addConstraint(Sketcher.Constraint("Equal", 12, 20))
sketch4.addConstraint(Sketcher.Constraint("Equal", 10, 22))
sketch4.addConstraint(Sketcher.Constraint("Equal", 28, 1))
sketch4.addConstraint(Sketcher.Constraint("Equal", 30, 3))
sketch4.addConstraint(Sketcher.Constraint("Equal", 32, 5))
sketch4.addConstraint(Sketcher.Constraint("Equal", 34, 7))
sketch4.addConstraint(Sketcher.Constraint("Equal", 5, 9))
sketch4.addConstraint(Sketcher.Constraint("Equal", 3, 11))
sketch4.addConstraint(Sketcher.Constraint("Equal", 1, 13))
sketch4.addConstraint(Sketcher.Constraint("DistanceX", 2, 1, 2, 2, Q("1 mm")))
sketch4.addConstraint(Sketcher.Constraint("DistanceX", 16, 2, 16, 1, Q("5 mm")))
sketch4.addConstraint(Sketcher.Constraint("DistanceX", 0, 1, 0, 2, Q("3.5 mm")))
sketch4.addConstraint(Sketcher.Constraint("DistanceX", 4, 1, 4, 2, Q("0.800001 mm")))
sketch4.addConstraint(Sketcher.Constraint("DistanceX", -1, 1, 0, 2, Q("14 mm")))
sketch4.addConstraint(Sketcher.Constraint("DistanceY", -1, 1, 5, 2, Q("12 mm")))
sketch4.setExpression("Constraints[102]", "Params.sketch4_width")
sketch4.setExpression("Constraints[103]", "Params.sketch4_width2")
sketch4.setExpression("Constraints[104]", "Params.sketch4_width3")
sketch4.setExpression("Constraints[105]", "Params.sketch4_width4")
pocket3 = body.newObject("PartDesign::Pocket", "Pocket002")
pocket3.Profile = sketch4
pocket3.Type = "ThroughAll"
pocket3.Reversed = True
body2 = doc.addObject("PartDesign::Body", "Body001")
doc.recompute()

body.Placement = App.Placement(V(0, 2.38, 19), App.Rotation(V(0, 0, 1), 0))
boolean = body2.newObject("PartDesign::Boolean", "Boolean")
boolean.Type = "Fuse"
boolean.addObjects([body])
body3 = doc.addObject("PartDesign::Body", "Body002")
doc.recompute()

body2.Placement = App.Placement(V(0, 4.75, 19), App.Rotation(V(0, 0, 1), 0))
boolean2 = body3.newObject("PartDesign::Boolean", "Boolean001")
boolean2.Type = "Fuse"
boolean2.addObjects([body2])
body4 = doc.addObject("PartDesign::Body", "Body003")
doc.recompute()

body3.Placement = App.Placement(V(0, -2.38, 19), App.Rotation(V(0, 0, 1), 0))
boolean3 = body4.newObject("PartDesign::Boolean", "Boolean002")
boolean3.Type = "Fuse"
boolean3.addObjects([body3])
body5 = doc.addObject("PartDesign::Body", "Body004")
doc.recompute()

body4.Placement = App.Placement(V(0, -4.75, 19), App.Rotation(V(0, 0, 1), 0))
boolean4 = body5.newObject("PartDesign::Boolean", "Boolean003")
boolean4.Type = "Fuse"
boolean4.addObjects([body4])
body6 = doc.addObject("PartDesign::Body", "Body005")
doc.recompute()

body5.Placement = App.Placement(V(0, 0, 19), App.Rotation(V(0, 0, 1), 0))
boolean5 = body6.newObject("PartDesign::Boolean", "Boolean004")
boolean5.Type = "Fuse"
boolean5.addObjects([body5])

doc.recompute()
